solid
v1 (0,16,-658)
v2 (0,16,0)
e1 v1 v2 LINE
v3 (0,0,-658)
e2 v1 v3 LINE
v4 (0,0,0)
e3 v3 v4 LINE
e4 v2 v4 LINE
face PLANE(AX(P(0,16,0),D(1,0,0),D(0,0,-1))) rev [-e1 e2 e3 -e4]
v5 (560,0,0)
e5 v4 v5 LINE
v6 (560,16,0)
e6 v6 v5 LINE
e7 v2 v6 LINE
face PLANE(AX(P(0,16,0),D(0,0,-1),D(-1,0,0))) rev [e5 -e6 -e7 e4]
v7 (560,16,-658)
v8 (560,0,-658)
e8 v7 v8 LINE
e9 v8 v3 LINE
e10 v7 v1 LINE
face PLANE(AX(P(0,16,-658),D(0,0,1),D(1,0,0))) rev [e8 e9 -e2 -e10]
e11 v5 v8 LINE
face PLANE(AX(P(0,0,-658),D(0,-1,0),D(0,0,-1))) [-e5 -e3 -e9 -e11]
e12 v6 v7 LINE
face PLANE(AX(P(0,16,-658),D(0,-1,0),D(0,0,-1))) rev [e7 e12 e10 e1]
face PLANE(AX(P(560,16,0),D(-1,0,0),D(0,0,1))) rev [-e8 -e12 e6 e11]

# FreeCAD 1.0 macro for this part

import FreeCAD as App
import Part
import Sketcher
from FreeCAD import Vector


def add_polygon(sketch, points):
    """Adds a closed chain of lines whose ends are joined by coincident constraints."""
    first, n = sketch.GeometryCount, len(points)
    for a, b in zip(points, points[1:] + points[:1]):
        sketch.addGeometry(Part.LineSegment(App.Vector(*a, 0), App.Vector(*b, 0)), False)
    for i in range(n):
        sketch.addConstraint(Sketcher.Constraint("Coincident", first + i, 2, first + (i + 1) % n, 1))

doc = App.newDocument("Part")
body = doc.addObject("PartDesign::Body", "Body")

sketch1 = body.newObject("Sketcher::SketchObject", "Sketch")
sketch1.AttachmentSupport = (doc.getObject("XZ_Plane"), [""])
sketch1.MapMode = "FlatFace"
add_polygon(sketch1, [(0, -658), (0, 0), (560, 0), (560, -658)])
sketch1.addConstraint(Sketcher.Constraint("Vertical", 0))
sketch1.addConstraint(Sketcher.Constraint("Horizontal", 1))
sketch1.addConstraint(Sketcher.Constraint("Vertical", 2))
sketch1.addConstraint(Sketcher.Constraint("Horizontal", 3))
sketch1.addConstraint(Sketcher.Constraint("Coincident", 0, 2, -1, 1))
sketch1.addConstraint(Sketcher.Constraint("DistanceX", 1, 1, 1, 2, 560.0))
sketch1.addConstraint(Sketcher.Constraint("DistanceY", 0, 1, 0, 2, 658.0))
pad1 = body.newObject("PartDesign::Pad", "Pad")
pad1.Profile = sketch1
pad1.Length = 16
pad1.Reversed = True

doc.recompute()
